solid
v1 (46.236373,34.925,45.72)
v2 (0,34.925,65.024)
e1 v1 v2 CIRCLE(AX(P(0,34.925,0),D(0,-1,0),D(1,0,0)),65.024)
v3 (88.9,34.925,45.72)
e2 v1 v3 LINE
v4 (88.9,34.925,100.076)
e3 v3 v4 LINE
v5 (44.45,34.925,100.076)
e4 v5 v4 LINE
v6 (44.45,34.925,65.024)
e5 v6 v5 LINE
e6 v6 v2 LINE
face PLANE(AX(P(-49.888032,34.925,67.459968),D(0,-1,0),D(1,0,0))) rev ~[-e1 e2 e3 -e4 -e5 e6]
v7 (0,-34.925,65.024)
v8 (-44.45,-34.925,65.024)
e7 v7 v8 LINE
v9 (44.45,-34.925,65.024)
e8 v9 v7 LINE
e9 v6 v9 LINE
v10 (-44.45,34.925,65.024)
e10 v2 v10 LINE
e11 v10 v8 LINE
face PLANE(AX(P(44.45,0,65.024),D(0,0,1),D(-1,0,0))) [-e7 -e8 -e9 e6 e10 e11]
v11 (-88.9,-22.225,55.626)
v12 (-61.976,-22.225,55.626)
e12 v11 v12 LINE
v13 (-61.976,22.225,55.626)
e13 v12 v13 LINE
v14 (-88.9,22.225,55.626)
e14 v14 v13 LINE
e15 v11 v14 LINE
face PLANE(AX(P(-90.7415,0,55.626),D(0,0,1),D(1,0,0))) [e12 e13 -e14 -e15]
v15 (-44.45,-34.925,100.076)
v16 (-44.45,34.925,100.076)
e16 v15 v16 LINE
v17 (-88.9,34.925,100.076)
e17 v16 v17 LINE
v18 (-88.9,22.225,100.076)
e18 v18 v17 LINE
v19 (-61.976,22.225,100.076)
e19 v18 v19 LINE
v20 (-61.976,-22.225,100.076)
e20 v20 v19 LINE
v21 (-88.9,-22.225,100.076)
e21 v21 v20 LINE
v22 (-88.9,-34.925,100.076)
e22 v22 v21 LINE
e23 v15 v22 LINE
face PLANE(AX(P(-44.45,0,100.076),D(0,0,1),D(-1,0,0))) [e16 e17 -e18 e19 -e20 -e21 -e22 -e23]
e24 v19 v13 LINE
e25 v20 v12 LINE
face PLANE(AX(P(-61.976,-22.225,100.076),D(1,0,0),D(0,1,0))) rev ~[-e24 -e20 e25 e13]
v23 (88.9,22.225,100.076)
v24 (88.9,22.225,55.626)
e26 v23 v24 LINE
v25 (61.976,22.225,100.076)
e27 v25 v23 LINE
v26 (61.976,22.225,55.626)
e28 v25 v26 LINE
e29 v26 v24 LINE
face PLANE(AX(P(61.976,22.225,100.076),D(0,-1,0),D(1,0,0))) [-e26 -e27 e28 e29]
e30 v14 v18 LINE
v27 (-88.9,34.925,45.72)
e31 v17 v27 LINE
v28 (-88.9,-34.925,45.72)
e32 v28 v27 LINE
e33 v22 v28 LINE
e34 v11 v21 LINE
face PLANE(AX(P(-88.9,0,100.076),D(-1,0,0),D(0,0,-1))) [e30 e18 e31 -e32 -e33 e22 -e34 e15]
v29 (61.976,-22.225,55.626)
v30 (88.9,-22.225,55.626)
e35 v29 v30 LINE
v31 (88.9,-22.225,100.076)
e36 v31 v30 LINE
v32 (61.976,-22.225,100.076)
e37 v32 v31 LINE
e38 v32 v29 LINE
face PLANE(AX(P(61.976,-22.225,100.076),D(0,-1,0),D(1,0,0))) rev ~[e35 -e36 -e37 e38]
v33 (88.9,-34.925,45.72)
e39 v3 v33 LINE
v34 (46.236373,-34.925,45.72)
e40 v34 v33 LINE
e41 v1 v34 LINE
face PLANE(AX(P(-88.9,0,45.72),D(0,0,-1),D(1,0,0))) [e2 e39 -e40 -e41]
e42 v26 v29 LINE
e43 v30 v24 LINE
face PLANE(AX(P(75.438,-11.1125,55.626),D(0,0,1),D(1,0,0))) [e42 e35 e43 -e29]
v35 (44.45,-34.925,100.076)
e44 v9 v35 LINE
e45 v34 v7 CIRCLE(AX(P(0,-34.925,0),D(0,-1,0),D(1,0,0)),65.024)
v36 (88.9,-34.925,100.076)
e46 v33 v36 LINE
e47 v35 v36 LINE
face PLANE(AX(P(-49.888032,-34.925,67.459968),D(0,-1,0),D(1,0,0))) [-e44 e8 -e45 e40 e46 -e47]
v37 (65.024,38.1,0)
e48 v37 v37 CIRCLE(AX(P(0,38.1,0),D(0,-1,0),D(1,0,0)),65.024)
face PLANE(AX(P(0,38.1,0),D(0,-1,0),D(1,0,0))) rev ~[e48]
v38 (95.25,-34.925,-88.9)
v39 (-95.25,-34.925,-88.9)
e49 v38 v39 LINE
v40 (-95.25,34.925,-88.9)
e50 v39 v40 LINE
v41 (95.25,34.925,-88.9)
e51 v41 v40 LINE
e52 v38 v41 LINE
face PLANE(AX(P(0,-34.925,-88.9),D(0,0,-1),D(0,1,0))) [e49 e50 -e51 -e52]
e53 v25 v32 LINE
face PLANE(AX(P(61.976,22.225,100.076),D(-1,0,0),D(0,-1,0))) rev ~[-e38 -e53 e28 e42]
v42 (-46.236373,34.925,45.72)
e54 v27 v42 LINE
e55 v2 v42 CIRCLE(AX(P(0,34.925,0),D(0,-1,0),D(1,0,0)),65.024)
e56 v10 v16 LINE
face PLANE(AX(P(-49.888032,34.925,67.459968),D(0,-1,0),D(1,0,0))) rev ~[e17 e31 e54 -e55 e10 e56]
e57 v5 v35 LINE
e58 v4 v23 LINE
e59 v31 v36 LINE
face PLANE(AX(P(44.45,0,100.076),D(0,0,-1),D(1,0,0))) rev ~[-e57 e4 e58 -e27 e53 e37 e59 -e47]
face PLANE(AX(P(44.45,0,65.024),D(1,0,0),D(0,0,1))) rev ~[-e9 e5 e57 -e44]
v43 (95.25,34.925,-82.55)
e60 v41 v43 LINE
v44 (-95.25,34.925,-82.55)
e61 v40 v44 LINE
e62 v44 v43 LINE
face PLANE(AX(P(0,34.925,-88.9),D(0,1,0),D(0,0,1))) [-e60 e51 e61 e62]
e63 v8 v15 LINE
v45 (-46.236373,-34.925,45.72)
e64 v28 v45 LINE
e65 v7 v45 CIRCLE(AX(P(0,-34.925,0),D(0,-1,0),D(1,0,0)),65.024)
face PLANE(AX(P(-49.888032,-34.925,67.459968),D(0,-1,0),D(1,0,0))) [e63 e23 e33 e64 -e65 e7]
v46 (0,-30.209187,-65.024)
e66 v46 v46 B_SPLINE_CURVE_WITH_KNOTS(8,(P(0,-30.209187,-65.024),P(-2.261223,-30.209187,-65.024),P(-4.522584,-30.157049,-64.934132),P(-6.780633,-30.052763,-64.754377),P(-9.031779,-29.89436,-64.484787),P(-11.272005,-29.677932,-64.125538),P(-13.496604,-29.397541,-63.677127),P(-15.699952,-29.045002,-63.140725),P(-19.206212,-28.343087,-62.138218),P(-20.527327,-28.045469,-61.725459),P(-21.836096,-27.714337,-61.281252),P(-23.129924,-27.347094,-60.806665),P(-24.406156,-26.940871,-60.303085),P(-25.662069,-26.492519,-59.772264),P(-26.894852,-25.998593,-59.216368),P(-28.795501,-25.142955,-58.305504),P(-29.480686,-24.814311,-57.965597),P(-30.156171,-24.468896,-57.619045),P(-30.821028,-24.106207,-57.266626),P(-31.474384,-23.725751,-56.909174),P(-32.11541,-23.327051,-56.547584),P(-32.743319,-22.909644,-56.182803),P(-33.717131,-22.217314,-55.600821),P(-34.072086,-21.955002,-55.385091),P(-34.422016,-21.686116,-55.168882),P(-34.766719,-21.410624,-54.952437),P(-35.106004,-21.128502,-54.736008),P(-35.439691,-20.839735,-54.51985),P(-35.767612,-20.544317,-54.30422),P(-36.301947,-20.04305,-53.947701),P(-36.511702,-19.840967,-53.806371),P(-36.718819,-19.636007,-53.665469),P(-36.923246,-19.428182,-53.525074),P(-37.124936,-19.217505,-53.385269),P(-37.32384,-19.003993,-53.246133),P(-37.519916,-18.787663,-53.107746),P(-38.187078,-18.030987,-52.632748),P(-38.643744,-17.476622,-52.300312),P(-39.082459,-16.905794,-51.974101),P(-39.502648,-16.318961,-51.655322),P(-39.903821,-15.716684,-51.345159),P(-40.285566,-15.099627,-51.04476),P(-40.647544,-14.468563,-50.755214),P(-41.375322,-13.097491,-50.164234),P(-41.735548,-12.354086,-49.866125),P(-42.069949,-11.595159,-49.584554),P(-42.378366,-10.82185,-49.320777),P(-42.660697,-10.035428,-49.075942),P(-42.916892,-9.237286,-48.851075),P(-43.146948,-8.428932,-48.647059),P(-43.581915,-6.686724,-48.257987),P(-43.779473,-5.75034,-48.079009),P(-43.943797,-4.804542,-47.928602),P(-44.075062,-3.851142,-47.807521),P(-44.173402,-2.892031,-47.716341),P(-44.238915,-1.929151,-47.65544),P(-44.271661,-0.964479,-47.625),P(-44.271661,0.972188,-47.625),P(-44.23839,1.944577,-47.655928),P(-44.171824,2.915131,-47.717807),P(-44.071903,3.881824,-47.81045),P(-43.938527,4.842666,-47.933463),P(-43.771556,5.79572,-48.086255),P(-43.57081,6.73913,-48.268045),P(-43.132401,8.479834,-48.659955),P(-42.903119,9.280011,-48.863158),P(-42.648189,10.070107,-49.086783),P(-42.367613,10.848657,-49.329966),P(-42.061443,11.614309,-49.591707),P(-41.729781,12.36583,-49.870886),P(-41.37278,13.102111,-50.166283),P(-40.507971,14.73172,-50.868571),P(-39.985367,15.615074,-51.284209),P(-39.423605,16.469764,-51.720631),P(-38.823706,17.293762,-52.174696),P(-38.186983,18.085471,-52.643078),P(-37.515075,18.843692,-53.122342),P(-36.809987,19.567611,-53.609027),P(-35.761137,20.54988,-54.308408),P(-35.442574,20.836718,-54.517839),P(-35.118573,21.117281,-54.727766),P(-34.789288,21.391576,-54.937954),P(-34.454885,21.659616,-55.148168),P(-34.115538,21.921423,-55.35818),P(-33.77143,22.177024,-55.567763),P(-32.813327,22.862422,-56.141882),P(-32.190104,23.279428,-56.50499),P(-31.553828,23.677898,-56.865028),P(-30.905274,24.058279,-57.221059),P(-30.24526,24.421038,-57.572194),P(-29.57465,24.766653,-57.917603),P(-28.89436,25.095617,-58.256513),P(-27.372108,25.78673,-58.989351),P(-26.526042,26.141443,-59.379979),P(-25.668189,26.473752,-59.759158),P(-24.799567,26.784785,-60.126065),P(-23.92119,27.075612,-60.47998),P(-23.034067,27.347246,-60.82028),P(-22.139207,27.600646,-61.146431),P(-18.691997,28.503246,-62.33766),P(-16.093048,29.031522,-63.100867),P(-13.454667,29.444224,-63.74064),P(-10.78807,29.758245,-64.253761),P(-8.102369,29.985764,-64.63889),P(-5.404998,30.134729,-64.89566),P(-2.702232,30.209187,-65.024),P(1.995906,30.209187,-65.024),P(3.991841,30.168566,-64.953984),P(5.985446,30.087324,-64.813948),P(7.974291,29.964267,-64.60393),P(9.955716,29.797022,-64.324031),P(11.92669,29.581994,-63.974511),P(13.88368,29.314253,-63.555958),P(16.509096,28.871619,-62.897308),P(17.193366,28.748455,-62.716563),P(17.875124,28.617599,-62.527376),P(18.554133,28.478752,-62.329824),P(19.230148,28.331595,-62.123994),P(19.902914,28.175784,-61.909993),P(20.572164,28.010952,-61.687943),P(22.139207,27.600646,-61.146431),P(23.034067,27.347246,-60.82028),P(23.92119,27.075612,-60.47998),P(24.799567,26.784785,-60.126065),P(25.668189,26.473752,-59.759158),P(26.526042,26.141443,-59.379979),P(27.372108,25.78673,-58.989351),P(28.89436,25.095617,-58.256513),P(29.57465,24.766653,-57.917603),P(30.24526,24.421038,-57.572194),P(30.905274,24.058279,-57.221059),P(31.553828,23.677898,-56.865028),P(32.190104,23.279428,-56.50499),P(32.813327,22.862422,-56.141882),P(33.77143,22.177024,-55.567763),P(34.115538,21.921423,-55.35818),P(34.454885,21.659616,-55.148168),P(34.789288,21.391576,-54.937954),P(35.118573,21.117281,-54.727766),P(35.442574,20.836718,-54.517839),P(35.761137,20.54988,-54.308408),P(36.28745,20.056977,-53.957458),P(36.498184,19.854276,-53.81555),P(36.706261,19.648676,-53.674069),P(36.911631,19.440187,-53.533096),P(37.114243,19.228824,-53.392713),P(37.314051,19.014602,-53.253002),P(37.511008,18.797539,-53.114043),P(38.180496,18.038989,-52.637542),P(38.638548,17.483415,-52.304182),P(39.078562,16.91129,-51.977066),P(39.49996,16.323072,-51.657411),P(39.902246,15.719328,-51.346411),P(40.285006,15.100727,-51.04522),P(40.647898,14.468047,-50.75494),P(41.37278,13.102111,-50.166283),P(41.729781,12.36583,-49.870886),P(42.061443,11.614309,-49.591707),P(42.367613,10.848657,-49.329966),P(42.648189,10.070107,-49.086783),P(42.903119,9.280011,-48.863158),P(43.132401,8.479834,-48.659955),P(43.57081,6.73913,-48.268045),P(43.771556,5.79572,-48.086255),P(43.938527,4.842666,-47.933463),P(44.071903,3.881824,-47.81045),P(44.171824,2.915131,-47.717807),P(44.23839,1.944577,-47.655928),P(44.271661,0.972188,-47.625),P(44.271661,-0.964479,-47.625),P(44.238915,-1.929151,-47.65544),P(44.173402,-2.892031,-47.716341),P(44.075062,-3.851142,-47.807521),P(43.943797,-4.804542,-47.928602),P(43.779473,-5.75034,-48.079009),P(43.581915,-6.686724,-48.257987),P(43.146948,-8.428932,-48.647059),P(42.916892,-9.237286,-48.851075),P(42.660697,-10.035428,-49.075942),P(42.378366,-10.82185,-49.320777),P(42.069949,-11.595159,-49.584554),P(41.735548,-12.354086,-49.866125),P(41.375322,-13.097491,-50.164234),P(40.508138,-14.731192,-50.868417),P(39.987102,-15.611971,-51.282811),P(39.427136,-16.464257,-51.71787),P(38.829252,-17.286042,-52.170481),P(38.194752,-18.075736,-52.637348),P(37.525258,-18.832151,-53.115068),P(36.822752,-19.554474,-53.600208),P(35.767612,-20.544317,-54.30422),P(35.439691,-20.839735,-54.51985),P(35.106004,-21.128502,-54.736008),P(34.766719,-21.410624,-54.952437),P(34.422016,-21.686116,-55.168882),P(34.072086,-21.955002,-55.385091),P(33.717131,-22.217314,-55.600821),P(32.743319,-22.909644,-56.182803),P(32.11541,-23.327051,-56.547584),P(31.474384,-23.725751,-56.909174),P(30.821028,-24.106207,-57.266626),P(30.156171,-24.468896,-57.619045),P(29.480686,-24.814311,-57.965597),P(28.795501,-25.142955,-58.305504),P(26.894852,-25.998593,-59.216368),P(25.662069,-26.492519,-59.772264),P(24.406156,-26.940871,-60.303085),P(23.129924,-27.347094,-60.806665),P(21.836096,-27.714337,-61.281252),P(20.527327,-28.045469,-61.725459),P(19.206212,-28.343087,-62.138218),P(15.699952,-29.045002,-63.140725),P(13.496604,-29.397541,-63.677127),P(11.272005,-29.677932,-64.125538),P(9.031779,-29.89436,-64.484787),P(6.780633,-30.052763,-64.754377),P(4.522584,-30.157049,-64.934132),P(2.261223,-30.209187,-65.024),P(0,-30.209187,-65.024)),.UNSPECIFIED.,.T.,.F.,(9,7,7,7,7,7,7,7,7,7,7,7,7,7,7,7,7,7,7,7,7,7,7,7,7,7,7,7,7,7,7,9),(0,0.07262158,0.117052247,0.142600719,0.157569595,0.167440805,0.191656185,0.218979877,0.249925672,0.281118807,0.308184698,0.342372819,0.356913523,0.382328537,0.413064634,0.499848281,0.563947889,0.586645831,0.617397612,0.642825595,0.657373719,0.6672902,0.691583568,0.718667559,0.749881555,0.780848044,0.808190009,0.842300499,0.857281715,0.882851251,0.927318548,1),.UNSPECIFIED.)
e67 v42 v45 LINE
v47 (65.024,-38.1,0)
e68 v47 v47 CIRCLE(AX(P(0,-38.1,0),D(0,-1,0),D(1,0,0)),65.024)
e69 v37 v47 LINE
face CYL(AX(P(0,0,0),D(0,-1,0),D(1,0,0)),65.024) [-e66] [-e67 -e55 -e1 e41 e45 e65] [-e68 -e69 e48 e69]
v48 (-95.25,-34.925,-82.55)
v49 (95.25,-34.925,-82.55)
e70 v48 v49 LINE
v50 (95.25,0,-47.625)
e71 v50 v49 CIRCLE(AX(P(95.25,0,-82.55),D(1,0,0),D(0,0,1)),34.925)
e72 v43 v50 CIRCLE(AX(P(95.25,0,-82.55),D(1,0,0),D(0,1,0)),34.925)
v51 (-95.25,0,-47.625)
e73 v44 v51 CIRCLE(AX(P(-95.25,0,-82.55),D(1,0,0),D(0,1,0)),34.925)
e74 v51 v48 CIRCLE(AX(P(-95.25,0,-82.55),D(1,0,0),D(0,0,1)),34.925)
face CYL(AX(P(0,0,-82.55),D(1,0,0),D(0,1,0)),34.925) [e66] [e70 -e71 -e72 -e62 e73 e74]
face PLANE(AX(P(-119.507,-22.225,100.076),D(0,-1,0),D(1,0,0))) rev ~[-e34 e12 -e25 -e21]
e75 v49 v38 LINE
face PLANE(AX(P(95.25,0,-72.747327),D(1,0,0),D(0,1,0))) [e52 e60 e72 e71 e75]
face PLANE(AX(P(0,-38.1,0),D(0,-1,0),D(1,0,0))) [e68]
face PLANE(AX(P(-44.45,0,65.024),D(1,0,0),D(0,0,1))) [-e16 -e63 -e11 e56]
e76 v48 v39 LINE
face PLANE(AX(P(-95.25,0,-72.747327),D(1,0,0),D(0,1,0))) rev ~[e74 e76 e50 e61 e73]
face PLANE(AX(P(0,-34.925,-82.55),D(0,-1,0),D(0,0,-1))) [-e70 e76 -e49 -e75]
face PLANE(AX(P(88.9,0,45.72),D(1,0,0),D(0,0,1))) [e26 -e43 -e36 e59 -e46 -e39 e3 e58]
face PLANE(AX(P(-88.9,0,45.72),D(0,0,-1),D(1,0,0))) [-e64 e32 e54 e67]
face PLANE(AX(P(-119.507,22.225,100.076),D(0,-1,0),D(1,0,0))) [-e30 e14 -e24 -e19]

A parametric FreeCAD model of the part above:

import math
import FreeCAD as App
import Part
import Sketcher
from FreeCAD import Vector
Q = App.Units.Quantity

doc = App.newDocument("Part")
body = doc.addObject("PartDesign::Body", "Body")

# Sketch on XZ plane
sketch1 = body.newObject("Sketcher::SketchObject", "Sketch")
sketch1.AttachmentSupport = (doc.getObject("XZ_Plane"), [""])
sketch1.MapMode = "FlatFace"
sketch1.addGeometry(Part.Circle(Vector(0, 0, 0), Vector(0, 0, 1), 65), False)
sketch1.addConstraint([
    Sketcher.Constraint("Coincident", 0, 3, -1, 1),
    Sketcher.Constraint("Diameter", 0, Q("5.12 in")),
])
pad1 = body.newObject("PartDesign::Pad", "Pad")
pad1.Profile = sketch1
pad1.Length = Q("3 in")
pad1.Midplane = True

# Sketch on YZ plane
sketch2 = body.newObject("Sketcher::SketchObject", "Sketch001")
sketch2.AttachmentSupport = (doc.getObject("YZ_Plane"), [""])
sketch2.MapMode = "FlatFace"
sketch2.addGeometry([
    Part.LineSegment(Vector(35, -89, 0), Vector(35, -83, 0)),  # 0
    Part.ArcOfCircle(Part.Circle(Vector(0, -83, 0), Vector(0, 0, 1), 35), math.radians(0), math.radians(90)),  # 1
    Part.ArcOfCircle(Part.Circle(Vector(0, -83, 0), Vector(0, 0, 1), 35), math.radians(90), math.radians(180)),  # 2
    Part.LineSegment(Vector(-35, -83, 0), Vector(-35, -89, 0)),  # 3
    Part.LineSegment(Vector(-35, -89, 0), Vector(35, -89, 0)),  # 4
], False)
sketch2.addConstraint([
    Sketcher.Constraint("Tangent", 0, 2, 1, 1),
    Sketcher.Constraint("Tangent", 1, 2, 2, 1),
    Sketcher.Constraint("Tangent", 2, 2, 3, 1),
    Sketcher.Constraint("Coincident", 3, 2, 4, 1),
    Sketcher.Constraint("Coincident", 4, 2, 0, 1),
    Sketcher.Constraint("Vertical", 0),
    Sketcher.Constraint("Vertical", 3),
    Sketcher.Constraint("Horizontal", 4),
    Sketcher.Constraint("Equal", 1, 2),
    Sketcher.Constraint("PointOnObject", 1, 3, -2),
    Sketcher.Constraint("PointOnObject", 1, 2, -2),
    Sketcher.Constraint("Radius", 1, Q("1.375 in")),
    Sketcher.Constraint("DistanceY", 0, 1, 0, 2, Q("0.25 in")),
    Sketcher.Constraint("DistanceY", 3, 2, -1, 1, Q("3.5 in")),
])
pad2 = body.newObject("PartDesign::Pad", "Pad001")
pad2.Profile = sketch2
pad2.Length = Q("7.5 in")
pad2.Midplane = True

# Sketch on XZ plane
sketch3 = body.newObject("Sketcher::SketchObject", "Sketch002")
sketch3.AttachmentSupport = (doc.getObject("XZ_Plane"), [""])
sketch3.MapMode = "FlatFace"
sketch3.addGeometry([
    Part.LineSegment(Vector(-89, 46, 0), Vector(89, 46, 0)),  # 0
    Part.LineSegment(Vector(89, 46, 0), Vector(89, 100, 0)),  # 1
    Part.LineSegment(Vector(89, 100, 0), Vector(44, 100, 0)),  # 2
    Part.LineSegment(Vector(44, 100, 0), Vector(44, 65, 0)),  # 3
    Part.LineSegment(Vector(44, 65, 0), Vector(-44, 65, 0)),  # 4
    Part.LineSegment(Vector(-44, 65, 0), Vector(-44, 100, 0)),  # 5
    Part.LineSegment(Vector(-44, 100, 0), Vector(-89, 100, 0)),  # 6
    Part.LineSegment(Vector(-89, 100, 0), Vector(-89, 46, 0)),  # 7
], False)
sketch3.addConstraint([
    Sketcher.Constraint("Coincident", 0, 2, 1, 1),
    Sketcher.Constraint("Coincident", 1, 2, 2, 1),
    Sketcher.Constraint("Coincident", 2, 2, 3, 1),
    Sketcher.Constraint("Coincident", 3, 2, 4, 1),
    Sketcher.Constraint("Coincident", 4, 2, 5, 1),
    Sketcher.Constraint("Coincident", 5, 2, 6, 1),
    Sketcher.Constraint("Coincident", 6, 2, 7, 1),
    Sketcher.Constraint("Coincident", 7, 2, 0, 1),
    Sketcher.Constraint("Horizontal", 0),
    Sketcher.Constraint("Vertical", 1),
    Sketcher.Constraint("Horizontal", 2),
    Sketcher.Constraint("Vertical", 3),
    Sketcher.Constraint("Horizontal", 4),
    Sketcher.Constraint("Vertical", 5),
    Sketcher.Constraint("Horizontal", 6),
    Sketcher.Constraint("Vertical", 7),
    Sketcher.Constraint("Symmetric", 2, 2, 5, 2, -2),
    Sketcher.Constraint("Equal", 2, 6),
    Sketcher.Constraint("DistanceX", 0, 1, 0, 2, Q("7 in")),
    Sketcher.Constraint("DistanceX", 4, 2, 4, 1, Q("3.5 in")),
    Sketcher.Constraint("DistanceY", 1, 1, 1, 2, Q("2.14 in")),
    Sketcher.Constraint("DistanceY", 3, 2, 3, 1, Q("1.38 in")),
    Sketcher.Constraint("DistanceY", -1, 1, 0, 2, Q("1.8 in")),
])
pad3 = body.newObject("PartDesign::Pad", "Pad002")
pad3.Profile = sketch3
pad3.Length = Q("2.75 in")
pad3.Midplane = True

# Sketch on XY plane
sketch4 = body.newObject("Sketcher::SketchObject", "Sketch003")
sketch4.AttachmentSupport = (doc.getObject("XY_Plane"), [""])
sketch4.MapMode = "FlatFace"
sketch4.AttachmentOffset = App.Placement(Vector(0, 0, 3.94 * 25.4), App.Rotation())
sketch4.addGeometry([
    Part.LineSegment(Vector(-120, 22, 0), Vector(-120, -22, 0)),  # 0
    Part.LineSegment(Vector(-120, -22, 0), Vector(-62, -22, 0)),  # 1
    Part.LineSegment(Vector(-62, -22, 0), Vector(-62, 22, 0)),  # 2
    Part.LineSegment(Vector(-62, 22, 0), Vector(-120, 22, 0)),  # 3
    Part.LineSegment(Vector(62, -22, 0), Vector(89, -22, 0)),  # 4
    Part.LineSegment(Vector(89, -22, 0), Vector(89, 22, 0)),  # 5
    Part.LineSegment(Vector(89, 22, 0), Vector(62, 22, 0)),  # 6
    Part.LineSegment(Vector(62, 22, 0), Vector(62, -22, 0)),  # 7
], False)
sketch4.addConstraint([
    Sketcher.Constraint("Coincident", 0, 2, 1, 1),
    Sketcher.Constraint("Coincident", 1, 2, 2, 1),
    Sketcher.Constraint("Coincident", 2, 2, 3, 1),
    Sketcher.Constraint("Coincident", 3, 2, 0, 1),
    Sketcher.Constraint("Coincident", 4, 2, 5, 1),
    Sketcher.Constraint("Coincident", 5, 2, 6, 1),
    Sketcher.Constraint("Coincident", 6, 2, 7, 1),
    Sketcher.Constraint("Coincident", 7, 2, 4, 1),
    Sketcher.Constraint("Vertical", 0),
    Sketcher.Constraint("Horizontal", 1),
    Sketcher.Constraint("Vertical", 2),
    Sketcher.Constraint("Horizontal", 3),
    Sketcher.Constraint("Horizontal", 4),
    Sketcher.Constraint("Vertical", 5),
    Sketcher.Constraint("Horizontal", 6),
    Sketcher.Constraint("Vertical", 7),
    Sketcher.Constraint("Symmetric", 1, 2, 6, 2, -1, 1),
    Sketcher.Constraint("Horizontal", 1, 2, 4, 2),
    Sketcher.Constraint("Horizontal", 3, 2, 5, 2),
    Sketcher.Constraint("DistanceX", 4, 1, 4, 2, Q("1.06 in")),
    Sketcher.Constraint("DistanceY", 0, 2, 0, 1, Q("1.75 in")),
    Sketcher.Constraint("DistanceX", -1, 1, 4, 2, Q("3.5 in")),
    Sketcher.Constraint("DistanceX", 1, 1, 1, 2, Q("2.265 in")),
])
pocket1 = body.newObject("PartDesign::Pocket", "Pocket")
pocket1.Profile = sketch4
pocket1.Length = Q("1.75 in")

doc.recompute()
